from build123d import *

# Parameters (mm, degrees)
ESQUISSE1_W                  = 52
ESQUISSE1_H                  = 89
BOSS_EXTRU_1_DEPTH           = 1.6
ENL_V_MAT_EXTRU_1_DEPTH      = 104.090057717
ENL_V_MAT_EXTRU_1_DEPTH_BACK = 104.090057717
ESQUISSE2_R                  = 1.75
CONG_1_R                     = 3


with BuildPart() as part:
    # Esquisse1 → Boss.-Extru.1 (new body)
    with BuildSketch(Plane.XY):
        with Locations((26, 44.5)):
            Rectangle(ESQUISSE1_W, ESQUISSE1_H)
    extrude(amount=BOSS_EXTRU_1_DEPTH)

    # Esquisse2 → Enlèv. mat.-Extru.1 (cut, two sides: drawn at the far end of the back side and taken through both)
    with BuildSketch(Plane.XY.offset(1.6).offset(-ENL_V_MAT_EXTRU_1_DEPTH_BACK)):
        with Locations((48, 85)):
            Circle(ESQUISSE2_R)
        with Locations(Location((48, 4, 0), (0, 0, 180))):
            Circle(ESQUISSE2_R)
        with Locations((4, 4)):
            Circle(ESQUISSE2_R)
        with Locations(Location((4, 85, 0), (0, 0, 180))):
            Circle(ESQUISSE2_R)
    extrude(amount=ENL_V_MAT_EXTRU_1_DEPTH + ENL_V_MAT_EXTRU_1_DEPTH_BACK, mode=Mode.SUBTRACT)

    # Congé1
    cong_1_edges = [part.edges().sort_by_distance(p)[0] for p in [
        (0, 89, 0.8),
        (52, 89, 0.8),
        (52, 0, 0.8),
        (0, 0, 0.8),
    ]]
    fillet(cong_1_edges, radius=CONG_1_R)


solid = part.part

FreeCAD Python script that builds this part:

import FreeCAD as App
import Part
import Sketcher

V = App.Vector


def edges_at(feature, points):
    """Names of the edges that pass closest to the given points."""
    edges = feature.Shape.Edges
    near = lambda p: min(range(len(edges)), key=lambda i: edges[i].distToShape(Part.Vertex(*p))[0])
    return sorted({f"Edge{near(p) + 1}" for p in points})

doc = App.newDocument("Part")
body = doc.addObject("PartDesign::Body", "Body")

# Sketch on XY plane
sketch1 = doc.addObject("Sketcher::SketchObject", "Sketch")
body.addObject(sketch1)
sketch1.AttachmentSupport = (doc.XY_Plane, [""])
sketch1.MapMode = "FlatFace"
sketch1.addGeometry([
    Part.LineSegment(V(0, 89, 0), V(0, 0, 0)),
    Part.LineSegment(V(0, 0, 0), V(52, 0, 0)),
    Part.LineSegment(V(52, 0, 0), V(52, 89, 0)),
    Part.LineSegment(V(52, 89, 0), V(0, 89, 0)),
], False)
sketch1.addConstraint([
    Sketcher.Constraint("Coincident", 0, 2, 1, 1),
    Sketcher.Constraint("Coincident", 1, 2, 2, 1),
    Sketcher.Constraint("Coincident", 2, 2, 3, 1),
    Sketcher.Constraint("Coincident", 3, 2, 0, 1),
    Sketcher.Constraint("Vertical", 0),
    Sketcher.Constraint("Horizontal", 1),
    Sketcher.Constraint("Vertical", 2),
    Sketcher.Constraint("Horizontal", 3),
    Sketcher.Constraint("Coincident", 0, 2, -1, 1),
    Sketcher.Constraint("DistanceX", 1, 1, 1, 2, 52.0),
    Sketcher.Constraint("DistanceY", 0, 2, 0, 1, 89.0),
])
pad1 = doc.addObject("PartDesign::Pad", "Pad")
body.addObject(pad1)
pad1.Profile = sketch1
pad1.Length = 1.6

# Sketch on XY plane
sketch2 = doc.addObject("Sketcher::SketchObject", "Sketch001")
body.addObject(sketch2)
sketch2.AttachmentSupport = (doc.XY_Plane, [""])
sketch2.MapMode = "FlatFace"
sketch2.AttachmentOffset = App.Placement(V(0, 0, 1.6), App.Rotation())
sketch2.addGeometry([
    Part.Circle(V(48, 85, 0), V(0, 0, 1), 1.75),
    Part.Circle(V(48, 4, 0), V(0, 0, 1), 1.75),
    Part.Circle(V(4, 4, 0), V(0, 0, 1), 1.75),
    Part.Circle(V(4, 85, 0), V(0, 0, 1), 1.75),
], False)
sketch2.addConstraint([
    Sketcher.Constraint("Equal", 0, 1),
    Sketcher.Constraint("Equal", 1, 2),
    Sketcher.Constraint("Equal", 2, 3),
    Sketcher.Constraint("Horizontal", 1, 3, 2, 3),
    Sketcher.Constraint("Horizontal", 0, 3, 3, 3),
    Sketcher.Constraint("Vertical", 0, 3, 1, 3),
    Sketcher.Constraint("Vertical", 2, 3, 3, 3),
    Sketcher.Constraint("Diameter", 0, 3.5),
    Sketcher.Constraint("DistanceX", -1, 1, 0, 3, 48.0),
    Sketcher.Constraint("DistanceY", -1, 1, 0, 3, 85.0),
    Sketcher.Constraint("DistanceY", -1, 1, 1, 3, 4.0),
    Sketcher.Constraint("DistanceX", -1, 1, 2, 3, 4.0),
])
pocket1 = doc.addObject("PartDesign::Pocket", "Pocket")
body.addObject(pocket1)
pocket1.Profile = sketch2
pocket1.Type = "ThroughAll"
pocket1.Midplane = True
doc.recompute()

fillet = doc.addObject("PartDesign::Fillet", "Fillet")
body.addObject(fillet)
fillet.Base = (pocket1, edges_at(pocket1, [
    (0, 89, 0.8),
    (52, 89, 0.8),
    (52, 0, 0.8),
    (0, 0, 0.8),
]))
fillet.Radius = 3

doc.recompute()
